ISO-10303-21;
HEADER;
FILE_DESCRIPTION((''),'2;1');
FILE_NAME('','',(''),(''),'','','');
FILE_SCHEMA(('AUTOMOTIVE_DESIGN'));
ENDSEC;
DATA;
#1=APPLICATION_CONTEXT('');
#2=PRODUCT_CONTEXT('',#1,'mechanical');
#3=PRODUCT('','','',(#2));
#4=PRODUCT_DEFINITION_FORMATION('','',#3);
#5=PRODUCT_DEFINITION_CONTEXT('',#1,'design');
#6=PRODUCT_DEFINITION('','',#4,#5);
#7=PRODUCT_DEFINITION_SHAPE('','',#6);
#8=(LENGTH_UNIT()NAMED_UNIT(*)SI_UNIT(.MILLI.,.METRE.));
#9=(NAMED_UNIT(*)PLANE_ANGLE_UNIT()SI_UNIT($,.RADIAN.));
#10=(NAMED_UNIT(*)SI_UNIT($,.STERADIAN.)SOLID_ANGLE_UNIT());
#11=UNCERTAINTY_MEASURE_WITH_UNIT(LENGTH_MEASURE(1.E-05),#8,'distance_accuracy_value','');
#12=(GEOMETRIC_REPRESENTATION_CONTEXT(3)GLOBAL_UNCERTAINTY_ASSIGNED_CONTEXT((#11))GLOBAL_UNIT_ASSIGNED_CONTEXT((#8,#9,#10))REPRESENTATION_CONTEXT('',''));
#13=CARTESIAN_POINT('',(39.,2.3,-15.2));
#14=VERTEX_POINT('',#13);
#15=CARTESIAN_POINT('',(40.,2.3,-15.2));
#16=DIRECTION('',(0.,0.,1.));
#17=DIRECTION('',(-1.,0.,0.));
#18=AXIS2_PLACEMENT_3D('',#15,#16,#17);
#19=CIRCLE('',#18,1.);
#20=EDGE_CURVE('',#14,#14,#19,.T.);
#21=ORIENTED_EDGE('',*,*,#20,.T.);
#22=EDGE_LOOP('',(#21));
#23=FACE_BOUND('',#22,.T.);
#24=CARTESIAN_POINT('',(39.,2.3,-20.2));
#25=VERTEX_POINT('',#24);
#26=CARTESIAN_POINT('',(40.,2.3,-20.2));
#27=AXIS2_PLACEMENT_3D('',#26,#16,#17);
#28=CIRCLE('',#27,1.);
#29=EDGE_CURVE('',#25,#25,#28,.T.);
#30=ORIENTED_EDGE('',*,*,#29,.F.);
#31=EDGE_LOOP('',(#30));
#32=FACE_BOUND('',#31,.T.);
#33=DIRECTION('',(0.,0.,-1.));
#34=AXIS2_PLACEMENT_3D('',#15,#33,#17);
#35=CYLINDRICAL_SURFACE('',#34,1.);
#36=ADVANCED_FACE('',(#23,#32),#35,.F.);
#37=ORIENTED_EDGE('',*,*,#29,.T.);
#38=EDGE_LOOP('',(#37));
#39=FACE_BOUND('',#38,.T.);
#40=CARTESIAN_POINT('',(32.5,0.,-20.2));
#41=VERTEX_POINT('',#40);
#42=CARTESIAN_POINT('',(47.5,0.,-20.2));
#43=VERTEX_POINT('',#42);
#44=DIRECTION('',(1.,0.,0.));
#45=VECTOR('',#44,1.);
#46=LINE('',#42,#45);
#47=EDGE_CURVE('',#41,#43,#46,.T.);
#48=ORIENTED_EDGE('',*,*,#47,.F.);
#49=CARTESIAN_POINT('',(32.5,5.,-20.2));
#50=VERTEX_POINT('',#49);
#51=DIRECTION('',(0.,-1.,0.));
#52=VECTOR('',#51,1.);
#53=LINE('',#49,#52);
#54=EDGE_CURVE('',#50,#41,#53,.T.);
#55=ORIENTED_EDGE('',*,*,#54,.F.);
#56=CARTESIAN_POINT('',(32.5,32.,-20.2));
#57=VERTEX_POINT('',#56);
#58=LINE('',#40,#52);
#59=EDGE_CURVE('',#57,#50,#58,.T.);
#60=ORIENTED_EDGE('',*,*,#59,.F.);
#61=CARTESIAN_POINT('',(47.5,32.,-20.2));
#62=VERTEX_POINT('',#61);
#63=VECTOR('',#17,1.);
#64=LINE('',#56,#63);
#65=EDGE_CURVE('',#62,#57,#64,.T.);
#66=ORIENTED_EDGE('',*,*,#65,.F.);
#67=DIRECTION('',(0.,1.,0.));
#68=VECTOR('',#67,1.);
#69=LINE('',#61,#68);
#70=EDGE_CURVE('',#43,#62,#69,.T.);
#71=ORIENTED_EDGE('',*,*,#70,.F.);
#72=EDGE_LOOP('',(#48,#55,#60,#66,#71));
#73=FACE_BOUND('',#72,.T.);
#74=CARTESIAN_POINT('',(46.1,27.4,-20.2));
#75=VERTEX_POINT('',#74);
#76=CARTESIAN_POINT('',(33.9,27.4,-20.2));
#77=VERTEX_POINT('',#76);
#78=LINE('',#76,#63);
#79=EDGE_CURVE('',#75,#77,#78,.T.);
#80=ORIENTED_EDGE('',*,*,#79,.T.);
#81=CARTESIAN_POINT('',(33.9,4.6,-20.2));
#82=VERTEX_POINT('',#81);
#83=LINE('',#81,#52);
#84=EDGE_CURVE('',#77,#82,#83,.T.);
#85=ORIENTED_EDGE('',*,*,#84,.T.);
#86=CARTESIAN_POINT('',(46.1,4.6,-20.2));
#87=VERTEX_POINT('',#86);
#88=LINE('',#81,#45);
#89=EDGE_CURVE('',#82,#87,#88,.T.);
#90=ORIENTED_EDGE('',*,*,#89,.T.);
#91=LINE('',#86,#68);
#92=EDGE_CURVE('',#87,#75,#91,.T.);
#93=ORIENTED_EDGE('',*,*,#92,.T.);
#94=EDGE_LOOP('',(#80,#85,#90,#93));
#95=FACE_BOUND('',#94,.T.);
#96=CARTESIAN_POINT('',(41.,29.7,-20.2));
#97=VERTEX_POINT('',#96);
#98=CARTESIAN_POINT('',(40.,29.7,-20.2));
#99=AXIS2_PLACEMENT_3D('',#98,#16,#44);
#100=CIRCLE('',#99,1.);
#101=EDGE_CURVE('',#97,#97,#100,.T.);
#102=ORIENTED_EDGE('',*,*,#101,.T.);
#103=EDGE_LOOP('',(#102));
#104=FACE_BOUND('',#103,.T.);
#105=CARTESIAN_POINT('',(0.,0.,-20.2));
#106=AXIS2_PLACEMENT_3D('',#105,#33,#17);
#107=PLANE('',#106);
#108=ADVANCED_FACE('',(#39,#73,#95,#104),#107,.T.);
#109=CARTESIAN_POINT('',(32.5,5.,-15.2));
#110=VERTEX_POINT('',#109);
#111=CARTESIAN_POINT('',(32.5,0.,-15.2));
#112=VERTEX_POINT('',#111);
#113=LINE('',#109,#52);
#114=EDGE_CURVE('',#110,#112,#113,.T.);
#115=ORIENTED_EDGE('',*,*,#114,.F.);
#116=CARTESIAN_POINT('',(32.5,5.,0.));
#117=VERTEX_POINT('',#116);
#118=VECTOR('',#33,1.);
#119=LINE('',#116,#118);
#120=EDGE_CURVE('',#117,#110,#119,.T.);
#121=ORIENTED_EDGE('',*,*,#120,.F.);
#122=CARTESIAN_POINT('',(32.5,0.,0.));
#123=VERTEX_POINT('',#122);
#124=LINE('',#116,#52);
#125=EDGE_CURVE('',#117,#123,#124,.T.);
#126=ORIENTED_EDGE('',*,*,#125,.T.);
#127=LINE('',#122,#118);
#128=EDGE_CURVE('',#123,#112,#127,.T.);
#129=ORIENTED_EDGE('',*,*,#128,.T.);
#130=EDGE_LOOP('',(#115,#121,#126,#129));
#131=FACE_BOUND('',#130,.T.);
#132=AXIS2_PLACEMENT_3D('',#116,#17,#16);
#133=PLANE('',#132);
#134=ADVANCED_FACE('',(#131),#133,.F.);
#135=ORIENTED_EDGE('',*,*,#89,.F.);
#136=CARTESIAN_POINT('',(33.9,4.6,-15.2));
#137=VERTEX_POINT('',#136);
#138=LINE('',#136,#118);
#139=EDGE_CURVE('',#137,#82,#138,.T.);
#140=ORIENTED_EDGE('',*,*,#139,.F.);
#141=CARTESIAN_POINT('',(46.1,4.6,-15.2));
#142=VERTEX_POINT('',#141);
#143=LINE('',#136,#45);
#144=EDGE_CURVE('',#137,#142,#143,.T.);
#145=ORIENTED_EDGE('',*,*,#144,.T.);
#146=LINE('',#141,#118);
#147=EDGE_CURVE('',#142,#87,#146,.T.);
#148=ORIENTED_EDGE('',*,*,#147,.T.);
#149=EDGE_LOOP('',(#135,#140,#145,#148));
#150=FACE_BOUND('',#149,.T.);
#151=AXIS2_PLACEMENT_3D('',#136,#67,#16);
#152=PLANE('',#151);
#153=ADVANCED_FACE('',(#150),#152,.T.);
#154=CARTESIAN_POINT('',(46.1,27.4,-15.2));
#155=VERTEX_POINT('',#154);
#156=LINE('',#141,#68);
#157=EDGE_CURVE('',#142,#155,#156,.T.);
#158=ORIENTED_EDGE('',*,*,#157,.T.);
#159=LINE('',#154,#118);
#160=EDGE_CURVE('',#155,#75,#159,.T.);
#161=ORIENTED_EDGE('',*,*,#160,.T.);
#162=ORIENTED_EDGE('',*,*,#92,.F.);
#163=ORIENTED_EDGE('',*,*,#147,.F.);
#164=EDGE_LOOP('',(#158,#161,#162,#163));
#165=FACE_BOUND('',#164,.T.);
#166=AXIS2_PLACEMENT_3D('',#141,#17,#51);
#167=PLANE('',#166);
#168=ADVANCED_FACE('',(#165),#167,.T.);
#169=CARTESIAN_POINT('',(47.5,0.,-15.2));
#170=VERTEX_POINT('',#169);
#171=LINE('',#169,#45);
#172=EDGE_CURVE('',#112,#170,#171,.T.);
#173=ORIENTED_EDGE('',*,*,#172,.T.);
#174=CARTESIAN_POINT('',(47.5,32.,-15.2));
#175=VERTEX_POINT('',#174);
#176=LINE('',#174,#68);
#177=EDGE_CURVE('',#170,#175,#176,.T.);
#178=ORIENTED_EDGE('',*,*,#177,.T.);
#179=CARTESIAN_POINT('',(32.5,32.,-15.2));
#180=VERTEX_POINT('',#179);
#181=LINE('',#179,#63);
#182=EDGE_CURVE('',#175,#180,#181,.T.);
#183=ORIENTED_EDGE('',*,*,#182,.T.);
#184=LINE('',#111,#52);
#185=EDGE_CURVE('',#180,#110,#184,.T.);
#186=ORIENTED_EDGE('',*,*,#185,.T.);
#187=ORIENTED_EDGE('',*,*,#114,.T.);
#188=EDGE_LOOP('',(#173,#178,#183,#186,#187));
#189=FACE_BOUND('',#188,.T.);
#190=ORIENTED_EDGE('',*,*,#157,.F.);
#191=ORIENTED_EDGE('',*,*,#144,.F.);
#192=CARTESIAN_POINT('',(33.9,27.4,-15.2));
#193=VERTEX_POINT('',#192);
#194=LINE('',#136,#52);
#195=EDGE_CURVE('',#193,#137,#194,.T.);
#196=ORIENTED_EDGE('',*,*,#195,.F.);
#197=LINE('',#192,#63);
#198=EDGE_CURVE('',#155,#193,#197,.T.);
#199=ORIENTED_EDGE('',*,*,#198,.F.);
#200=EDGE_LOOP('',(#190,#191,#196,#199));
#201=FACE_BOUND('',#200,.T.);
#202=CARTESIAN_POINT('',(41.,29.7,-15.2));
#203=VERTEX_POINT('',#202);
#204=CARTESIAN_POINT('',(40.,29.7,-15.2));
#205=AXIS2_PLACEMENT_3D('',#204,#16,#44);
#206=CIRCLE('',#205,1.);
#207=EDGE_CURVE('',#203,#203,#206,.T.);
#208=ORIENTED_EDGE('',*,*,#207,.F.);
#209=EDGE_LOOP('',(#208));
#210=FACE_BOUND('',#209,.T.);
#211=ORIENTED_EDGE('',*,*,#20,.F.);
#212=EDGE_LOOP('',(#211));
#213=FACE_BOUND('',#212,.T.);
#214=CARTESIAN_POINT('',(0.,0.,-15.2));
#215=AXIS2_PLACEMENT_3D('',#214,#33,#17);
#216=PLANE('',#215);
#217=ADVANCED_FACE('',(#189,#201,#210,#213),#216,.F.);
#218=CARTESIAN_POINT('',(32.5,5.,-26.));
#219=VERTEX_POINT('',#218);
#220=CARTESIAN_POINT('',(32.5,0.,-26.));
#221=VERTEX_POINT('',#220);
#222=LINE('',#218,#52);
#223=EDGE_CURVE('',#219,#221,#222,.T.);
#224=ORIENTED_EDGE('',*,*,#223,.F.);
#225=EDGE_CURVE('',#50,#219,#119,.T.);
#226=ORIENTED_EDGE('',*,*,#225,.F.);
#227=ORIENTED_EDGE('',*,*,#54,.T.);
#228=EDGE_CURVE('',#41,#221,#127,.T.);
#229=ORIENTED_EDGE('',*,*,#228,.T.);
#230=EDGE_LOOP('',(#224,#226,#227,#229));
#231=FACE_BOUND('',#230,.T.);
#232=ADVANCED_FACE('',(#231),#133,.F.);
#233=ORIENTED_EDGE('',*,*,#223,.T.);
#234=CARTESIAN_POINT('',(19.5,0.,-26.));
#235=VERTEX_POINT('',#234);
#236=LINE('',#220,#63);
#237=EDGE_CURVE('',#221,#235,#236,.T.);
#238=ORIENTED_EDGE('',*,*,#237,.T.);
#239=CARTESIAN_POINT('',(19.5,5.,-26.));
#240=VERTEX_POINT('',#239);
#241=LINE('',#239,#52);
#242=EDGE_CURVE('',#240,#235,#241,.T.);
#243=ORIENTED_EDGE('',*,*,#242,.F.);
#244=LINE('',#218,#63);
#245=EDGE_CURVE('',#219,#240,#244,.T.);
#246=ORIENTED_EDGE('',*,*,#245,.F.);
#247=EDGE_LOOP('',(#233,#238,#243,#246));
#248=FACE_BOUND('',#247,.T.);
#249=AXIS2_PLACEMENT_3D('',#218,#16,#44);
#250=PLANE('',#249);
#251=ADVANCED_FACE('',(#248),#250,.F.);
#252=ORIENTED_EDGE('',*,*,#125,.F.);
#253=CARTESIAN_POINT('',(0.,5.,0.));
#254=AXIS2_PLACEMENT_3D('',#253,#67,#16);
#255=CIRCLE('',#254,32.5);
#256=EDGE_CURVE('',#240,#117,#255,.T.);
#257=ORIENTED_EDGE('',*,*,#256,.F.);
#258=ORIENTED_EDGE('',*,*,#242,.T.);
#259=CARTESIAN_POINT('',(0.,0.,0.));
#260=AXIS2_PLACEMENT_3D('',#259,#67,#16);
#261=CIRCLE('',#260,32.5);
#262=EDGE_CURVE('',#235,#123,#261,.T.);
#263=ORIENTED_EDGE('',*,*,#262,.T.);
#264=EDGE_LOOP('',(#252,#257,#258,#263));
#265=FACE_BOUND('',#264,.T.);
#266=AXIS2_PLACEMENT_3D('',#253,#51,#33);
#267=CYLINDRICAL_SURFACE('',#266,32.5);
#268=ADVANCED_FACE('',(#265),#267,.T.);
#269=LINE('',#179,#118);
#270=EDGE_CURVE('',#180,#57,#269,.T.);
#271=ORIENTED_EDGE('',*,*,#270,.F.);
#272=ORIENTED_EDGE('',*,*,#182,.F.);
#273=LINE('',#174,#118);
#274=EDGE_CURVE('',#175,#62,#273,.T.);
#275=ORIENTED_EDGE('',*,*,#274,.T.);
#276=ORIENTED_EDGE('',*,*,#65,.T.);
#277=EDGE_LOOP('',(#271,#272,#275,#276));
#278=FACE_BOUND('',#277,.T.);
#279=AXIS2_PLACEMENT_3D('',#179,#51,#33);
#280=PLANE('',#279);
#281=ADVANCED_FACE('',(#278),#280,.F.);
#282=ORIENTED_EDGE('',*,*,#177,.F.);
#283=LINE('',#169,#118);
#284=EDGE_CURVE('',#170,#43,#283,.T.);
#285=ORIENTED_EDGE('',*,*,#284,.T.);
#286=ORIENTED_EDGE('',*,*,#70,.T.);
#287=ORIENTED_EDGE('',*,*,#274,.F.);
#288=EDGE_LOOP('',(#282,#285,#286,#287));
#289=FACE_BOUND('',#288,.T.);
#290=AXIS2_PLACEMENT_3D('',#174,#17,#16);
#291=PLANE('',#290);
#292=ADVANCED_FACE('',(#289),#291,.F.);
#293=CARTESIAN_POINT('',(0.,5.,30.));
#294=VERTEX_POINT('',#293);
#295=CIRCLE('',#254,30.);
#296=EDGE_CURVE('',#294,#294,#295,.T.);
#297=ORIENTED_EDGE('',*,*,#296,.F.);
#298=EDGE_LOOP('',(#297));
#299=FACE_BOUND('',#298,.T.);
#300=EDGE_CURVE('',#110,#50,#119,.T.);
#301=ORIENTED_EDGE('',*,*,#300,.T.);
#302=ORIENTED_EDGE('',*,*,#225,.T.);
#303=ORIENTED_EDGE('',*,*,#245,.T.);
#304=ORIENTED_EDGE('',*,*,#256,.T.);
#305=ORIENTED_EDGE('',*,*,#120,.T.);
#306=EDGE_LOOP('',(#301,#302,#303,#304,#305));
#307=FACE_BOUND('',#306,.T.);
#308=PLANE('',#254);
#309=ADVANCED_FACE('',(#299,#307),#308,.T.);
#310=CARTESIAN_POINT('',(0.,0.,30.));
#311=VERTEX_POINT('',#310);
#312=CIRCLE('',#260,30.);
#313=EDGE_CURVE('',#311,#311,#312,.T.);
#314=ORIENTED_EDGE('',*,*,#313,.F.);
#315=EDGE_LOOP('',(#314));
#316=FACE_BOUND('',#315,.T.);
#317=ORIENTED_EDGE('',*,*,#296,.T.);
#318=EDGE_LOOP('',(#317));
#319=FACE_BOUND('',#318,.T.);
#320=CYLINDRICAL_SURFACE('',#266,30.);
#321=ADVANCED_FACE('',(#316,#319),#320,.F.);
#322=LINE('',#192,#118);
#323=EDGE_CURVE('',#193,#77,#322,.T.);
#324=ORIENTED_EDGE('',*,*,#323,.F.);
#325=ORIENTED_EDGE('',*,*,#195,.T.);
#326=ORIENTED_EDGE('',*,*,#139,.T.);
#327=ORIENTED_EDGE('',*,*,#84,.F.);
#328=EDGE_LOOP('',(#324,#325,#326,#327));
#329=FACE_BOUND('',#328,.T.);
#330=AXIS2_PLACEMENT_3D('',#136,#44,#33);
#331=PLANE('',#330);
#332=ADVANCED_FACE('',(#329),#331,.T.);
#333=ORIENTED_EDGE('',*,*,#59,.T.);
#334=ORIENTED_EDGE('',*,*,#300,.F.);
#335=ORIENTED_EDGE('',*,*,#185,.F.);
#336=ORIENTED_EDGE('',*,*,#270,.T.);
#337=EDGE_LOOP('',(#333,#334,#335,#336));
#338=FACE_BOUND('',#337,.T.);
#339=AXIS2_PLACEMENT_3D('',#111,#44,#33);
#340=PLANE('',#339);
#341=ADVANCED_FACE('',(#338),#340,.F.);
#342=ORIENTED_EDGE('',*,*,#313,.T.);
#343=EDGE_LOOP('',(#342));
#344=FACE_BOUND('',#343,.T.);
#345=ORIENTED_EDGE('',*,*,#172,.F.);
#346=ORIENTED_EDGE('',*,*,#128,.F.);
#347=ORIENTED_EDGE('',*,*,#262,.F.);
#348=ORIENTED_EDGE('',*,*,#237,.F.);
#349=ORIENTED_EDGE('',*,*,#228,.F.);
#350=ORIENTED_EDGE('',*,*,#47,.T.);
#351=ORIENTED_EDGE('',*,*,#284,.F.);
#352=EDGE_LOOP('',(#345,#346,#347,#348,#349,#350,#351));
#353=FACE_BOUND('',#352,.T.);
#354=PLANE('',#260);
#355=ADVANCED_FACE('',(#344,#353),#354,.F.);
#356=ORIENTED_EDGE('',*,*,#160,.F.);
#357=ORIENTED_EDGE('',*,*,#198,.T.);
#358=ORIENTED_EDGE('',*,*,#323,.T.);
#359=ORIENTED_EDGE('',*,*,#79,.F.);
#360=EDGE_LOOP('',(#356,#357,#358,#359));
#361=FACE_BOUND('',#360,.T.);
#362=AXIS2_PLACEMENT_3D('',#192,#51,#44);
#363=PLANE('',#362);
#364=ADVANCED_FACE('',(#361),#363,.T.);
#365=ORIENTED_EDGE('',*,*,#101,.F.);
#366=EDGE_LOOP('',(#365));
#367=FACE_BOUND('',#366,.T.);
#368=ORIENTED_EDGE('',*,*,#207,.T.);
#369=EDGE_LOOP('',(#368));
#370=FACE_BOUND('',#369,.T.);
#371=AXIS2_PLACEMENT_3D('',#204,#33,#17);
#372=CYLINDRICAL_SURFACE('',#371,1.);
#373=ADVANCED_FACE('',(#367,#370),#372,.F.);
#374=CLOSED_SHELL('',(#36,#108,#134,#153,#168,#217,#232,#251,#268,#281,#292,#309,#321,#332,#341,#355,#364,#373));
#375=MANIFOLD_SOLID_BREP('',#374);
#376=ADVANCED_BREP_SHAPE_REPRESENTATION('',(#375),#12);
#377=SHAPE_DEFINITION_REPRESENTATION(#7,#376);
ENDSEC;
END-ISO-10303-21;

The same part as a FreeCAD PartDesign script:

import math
import FreeCAD as App
import Part
import Sketcher

doc = App.newDocument("Part")
params = doc.addObject("Spreadsheet::Sheet", "Params")
for row, (alias, value) in enumerate([
    ("sketch1_diameter", "60 mm"),
    ("sketch1_radius", "32.5 mm"),
    ("sketch1_width", "13 mm"),
    ("pad1_length", "5 mm"),
    ("sketch2_diameter", "2 mm"),
    ("sketch2_width", "15 mm"),
    ("sketch2_height", "32 mm"),
    ("sketch2_width2", "12.2 mm"),
    ("sketch2_height2", "22.8 mm"),
    ("pad2_length", "5 mm"),
], start=1):
    params.set(f"A{row}", alias)
    params.set(f"B{row}", "=" + value)
    params.setAlias(f"B{row}", alias)

body = doc.addObject("PartDesign::Body", "Body")

# Sketch on XZ plane
sketch1 = body.newObject("Sketcher::SketchObject", "Sketch")
sketch1.AttachmentSupport = (doc.getObject("XZ_Plane"), [""])
sketch1.MapMode = "FlatFace"
sketch1.addGeometry(Part.LineSegment(App.Vector(32, 0, 0), App.Vector(32, -26, 0)), False)
sketch1.addGeometry(Part.LineSegment(App.Vector(32, -26, 0), App.Vector(20, -26, 0)), False)
sketch1.addGeometry(Part.ArcOfCircle(Part.Circle(App.Vector(0, 0, 0), App.Vector(0, 0, 1), 32), math.radians(0), math.radians(307)), False)
sketch1.addGeometry(Part.Circle(App.Vector(0, 0, 0), App.Vector(0, 0, 1), 30), False)
sketch1.addConstraint(Sketcher.Constraint("Coincident", 0, 2, 1, 1))
sketch1.addConstraint(Sketcher.Constraint("Coincident", 1, 2, 2, 2))
sketch1.addConstraint(Sketcher.Constraint("Tangent", 2, 1, 0, 1))
sketch1.addConstraint(Sketcher.Constraint("Vertical", 0))
sketch1.addConstraint(Sketcher.Constraint("Horizontal", 1))
sketch1.addConstraint(Sketcher.Constraint("Coincident", 2, 3, -1, 1))
sketch1.addConstraint(Sketcher.Constraint("Coincident", 3, 3, -1, 1))
sketch1.addConstraint(Sketcher.Constraint("Diameter", 3, 60.0))
sketch1.addConstraint(Sketcher.Constraint("Radius", 2, 32.5))
sketch1.addConstraint(Sketcher.Constraint("DistanceX", 1, 2, 1, 1, 13.0))
sketch1.setExpression("Constraints[7]", "Params.sketch1_diameter")
sketch1.setExpression("Constraints[8]", "Params.sketch1_radius")
sketch1.setExpression("Constraints[9]", "Params.sketch1_width")
pad1 = body.newObject("PartDesign::Pad", "Pad")
pad1.Profile = sketch1
pad1.setExpression("Length", "Params.pad1_length")
pad1.Reversed = True

# Sketch on XY plane
sketch2 = body.newObject("Sketcher::SketchObject", "Sketch001")
sketch2.AttachmentSupport = (doc.getObject("XY_Plane"), [""])
sketch2.MapMode = "FlatFace"
sketch2.AttachmentOffset = App.Placement(App.Vector(0, 0, -20.2), App.Rotation())
sketch2.addGeometry(Part.LineSegment(App.Vector(32.5, 32, 0), App.Vector(32.5, 0, 0)), False)
sketch2.addGeometry(Part.LineSegment(App.Vector(32.5, 0, 0), App.Vector(47.5, 0, 0)), False)
sketch2.addGeometry(Part.LineSegment(App.Vector(47.5, 0, 0), App.Vector(47.5, 32, 0)), False)
sketch2.addGeometry(Part.LineSegment(App.Vector(47.5, 32, 0), App.Vector(32.5, 32, 0)), False)
sketch2.addGeometry(Part.Circle(App.Vector(40, 2.3, 0), App.Vector(0, 0, 1), 1), False)
sketch2.addGeometry(Part.LineSegment(App.Vector(46.1, 4.6, 0), App.Vector(33.9, 4.6, 0)), False)
sketch2.addGeometry(Part.LineSegment(App.Vector(33.9, 4.6, 0), App.Vector(33.9, 27.4, 0)), False)
sketch2.addGeometry(Part.LineSegment(App.Vector(33.9, 27.4, 0), App.Vector(46.1, 27.4, 0)), False)
sketch2.addGeometry(Part.LineSegment(App.Vector(46.1, 27.4, 0), App.Vector(46.1, 4.6, 0)), False)
sketch2.addGeometry(Part.Circle(App.Vector(40, 29.7, 0), App.Vector(0, 0, 1), 1), False)
sketch2.addConstraint(Sketcher.Constraint("Coincident", 0, 2, 1, 1))
sketch2.addConstraint(Sketcher.Constraint("Coincident", 1, 2, 2, 1))
sketch2.addConstraint(Sketcher.Constraint("Coincident", 2, 2, 3, 1))
sketch2.addConstraint(Sketcher.Constraint("Coincident", 3, 2, 0, 1))
sketch2.addConstraint(Sketcher.Constraint("Coincident", 5, 2, 6, 1))
sketch2.addConstraint(Sketcher.Constraint("Coincident", 6, 2, 7, 1))
sketch2.addConstraint(Sketcher.Constraint("Coincident", 7, 2, 8, 1))
sketch2.addConstraint(Sketcher.Constraint("Coincident", 8, 2, 5, 1))
sketch2.addConstraint(Sketcher.Constraint("Vertical", 0))
sketch2.addConstraint(Sketcher.Constraint("Horizontal", 1))
sketch2.addConstraint(Sketcher.Constraint("Vertical", 2))
sketch2.addConstraint(Sketcher.Constraint("Horizontal", 3))
sketch2.addConstraint(Sketcher.Constraint("Horizontal", 5))
sketch2.addConstraint(Sketcher.Constraint("Vertical", 6))
sketch2.addConstraint(Sketcher.Constraint("Horizontal", 7))
sketch2.addConstraint(Sketcher.Constraint("Vertical", 8))
sketch2.addConstraint(Sketcher.Constraint("Equal", 4, 9))
sketch2.addConstraint(Sketcher.Constraint("PointOnObject", 0, 2, -1))
sketch2.addConstraint(Sketcher.Constraint("Vertical", 4, 3, 9, 3))
sketch2.addConstraint(Sketcher.Constraint("Diameter", 4, 2.0))
sketch2.addConstraint(Sketcher.Constraint("DistanceX", 1, 1, 1, 2, 15.0))
sketch2.addConstraint(Sketcher.Constraint("DistanceY", 0, 2, 0, 1, 32.0))
sketch2.addConstraint(Sketcher.Constraint("DistanceX", 5, 2, 5, 1, 12.2))
sketch2.addConstraint(Sketcher.Constraint("DistanceY", 6, 1, 6, 2, 22.8))
sketch2.addConstraint(Sketcher.Constraint("DistanceX", -1, 1, 4, 3, 40.0))
sketch2.addConstraint(Sketcher.Constraint("DistanceY", -1, 1, 4, 3, 2.3))
sketch2.addConstraint(Sketcher.Constraint("DistanceY", -1, 1, 9, 3, 29.7))
sketch2.addConstraint(Sketcher.Constraint("DistanceX", -1, 1, 0, 2, 32.5))
sketch2.addConstraint(Sketcher.Constraint("DistanceX", -1, 1, 5, 2, 33.9))
sketch2.addConstraint(Sketcher.Constraint("DistanceY", -1, 1, 5, 2, 4.6))
sketch2.setExpression("Constraints[19]", "Params.sketch2_diameter")
sketch2.setExpression("Constraints[20]", "Params.sketch2_width")
sketch2.setExpression("Constraints[21]", "Params.sketch2_height")
sketch2.setExpression("Constraints[22]", "Params.sketch2_width2")
sketch2.setExpression("Constraints[23]", "Params.sketch2_height2")
pad2 = body.newObject("PartDesign::Pad", "Pad001")
pad2.Profile = sketch2
pad2.setExpression("Length", "Params.pad2_length")

doc.recompute()
